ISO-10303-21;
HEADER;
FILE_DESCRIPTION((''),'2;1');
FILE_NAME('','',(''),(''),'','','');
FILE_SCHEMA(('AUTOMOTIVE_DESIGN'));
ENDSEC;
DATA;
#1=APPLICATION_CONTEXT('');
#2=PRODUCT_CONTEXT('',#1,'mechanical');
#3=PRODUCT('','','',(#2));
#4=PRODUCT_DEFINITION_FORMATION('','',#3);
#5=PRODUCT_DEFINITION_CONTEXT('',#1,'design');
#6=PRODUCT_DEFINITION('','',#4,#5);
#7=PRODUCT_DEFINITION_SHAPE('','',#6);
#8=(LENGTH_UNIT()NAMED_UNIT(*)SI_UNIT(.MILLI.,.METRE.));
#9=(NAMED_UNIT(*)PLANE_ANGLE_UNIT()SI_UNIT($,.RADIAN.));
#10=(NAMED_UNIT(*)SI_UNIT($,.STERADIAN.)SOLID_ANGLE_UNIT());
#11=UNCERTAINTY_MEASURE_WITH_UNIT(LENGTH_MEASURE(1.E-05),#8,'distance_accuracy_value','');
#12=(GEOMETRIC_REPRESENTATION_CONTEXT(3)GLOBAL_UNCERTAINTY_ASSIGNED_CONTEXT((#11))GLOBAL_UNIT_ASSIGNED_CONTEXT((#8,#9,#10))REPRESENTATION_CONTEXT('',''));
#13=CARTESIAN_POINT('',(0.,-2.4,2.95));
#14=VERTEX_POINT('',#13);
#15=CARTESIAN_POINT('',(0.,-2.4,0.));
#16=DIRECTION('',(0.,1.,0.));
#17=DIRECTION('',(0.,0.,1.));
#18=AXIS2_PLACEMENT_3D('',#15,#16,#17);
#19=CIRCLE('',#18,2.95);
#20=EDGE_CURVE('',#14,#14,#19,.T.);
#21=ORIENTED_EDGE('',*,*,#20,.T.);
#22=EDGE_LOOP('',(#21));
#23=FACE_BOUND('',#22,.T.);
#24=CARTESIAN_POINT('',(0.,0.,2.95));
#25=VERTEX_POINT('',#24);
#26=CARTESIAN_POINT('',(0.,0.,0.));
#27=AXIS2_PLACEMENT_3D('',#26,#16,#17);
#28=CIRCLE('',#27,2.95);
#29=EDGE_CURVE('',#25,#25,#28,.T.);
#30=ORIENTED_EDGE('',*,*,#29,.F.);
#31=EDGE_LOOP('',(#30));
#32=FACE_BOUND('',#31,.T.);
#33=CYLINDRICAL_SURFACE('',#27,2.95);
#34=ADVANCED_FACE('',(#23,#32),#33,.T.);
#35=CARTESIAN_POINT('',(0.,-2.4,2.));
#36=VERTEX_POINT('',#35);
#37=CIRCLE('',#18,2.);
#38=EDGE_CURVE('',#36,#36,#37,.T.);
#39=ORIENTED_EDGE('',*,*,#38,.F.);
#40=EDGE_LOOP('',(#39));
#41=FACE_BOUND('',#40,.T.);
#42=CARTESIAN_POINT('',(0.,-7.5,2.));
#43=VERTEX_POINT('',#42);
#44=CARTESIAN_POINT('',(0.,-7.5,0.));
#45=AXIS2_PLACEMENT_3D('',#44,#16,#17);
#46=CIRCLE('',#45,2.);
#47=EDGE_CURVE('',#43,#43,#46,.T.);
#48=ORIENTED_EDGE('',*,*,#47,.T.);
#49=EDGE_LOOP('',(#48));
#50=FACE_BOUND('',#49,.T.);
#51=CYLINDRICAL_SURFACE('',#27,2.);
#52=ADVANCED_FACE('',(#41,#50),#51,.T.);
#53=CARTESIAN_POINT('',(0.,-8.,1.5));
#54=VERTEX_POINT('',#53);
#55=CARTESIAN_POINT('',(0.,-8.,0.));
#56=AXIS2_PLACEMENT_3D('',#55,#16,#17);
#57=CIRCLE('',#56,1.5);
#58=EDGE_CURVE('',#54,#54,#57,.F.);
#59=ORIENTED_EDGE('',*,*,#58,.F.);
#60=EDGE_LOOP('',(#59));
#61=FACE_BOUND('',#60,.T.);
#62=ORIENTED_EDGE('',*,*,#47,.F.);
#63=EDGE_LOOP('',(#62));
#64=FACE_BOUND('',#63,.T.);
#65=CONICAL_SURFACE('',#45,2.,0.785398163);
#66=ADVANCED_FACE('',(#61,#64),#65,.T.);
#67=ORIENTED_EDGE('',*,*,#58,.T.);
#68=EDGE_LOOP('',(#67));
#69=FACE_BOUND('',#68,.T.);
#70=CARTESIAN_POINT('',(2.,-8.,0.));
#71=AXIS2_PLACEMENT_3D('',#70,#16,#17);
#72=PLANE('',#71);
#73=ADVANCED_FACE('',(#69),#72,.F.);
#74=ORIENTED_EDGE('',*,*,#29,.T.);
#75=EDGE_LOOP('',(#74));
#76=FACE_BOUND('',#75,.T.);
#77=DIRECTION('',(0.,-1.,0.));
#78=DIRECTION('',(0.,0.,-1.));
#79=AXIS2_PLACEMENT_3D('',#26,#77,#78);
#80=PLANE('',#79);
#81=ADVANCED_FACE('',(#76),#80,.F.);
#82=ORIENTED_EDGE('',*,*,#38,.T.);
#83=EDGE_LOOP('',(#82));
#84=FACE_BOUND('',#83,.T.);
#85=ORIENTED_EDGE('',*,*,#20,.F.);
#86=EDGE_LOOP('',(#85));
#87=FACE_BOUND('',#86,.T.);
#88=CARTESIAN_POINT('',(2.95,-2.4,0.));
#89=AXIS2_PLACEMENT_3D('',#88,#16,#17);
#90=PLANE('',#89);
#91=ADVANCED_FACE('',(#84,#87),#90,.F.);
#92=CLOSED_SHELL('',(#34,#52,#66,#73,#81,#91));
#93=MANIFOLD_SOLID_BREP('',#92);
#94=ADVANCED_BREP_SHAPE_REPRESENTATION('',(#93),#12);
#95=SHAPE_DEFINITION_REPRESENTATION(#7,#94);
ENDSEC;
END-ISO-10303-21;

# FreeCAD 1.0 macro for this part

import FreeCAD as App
import Part
import Sketcher

V = App.Vector
Q = App.Units.Quantity


def edges_at(feature, points):
    """Names of the edges that pass closest to the given points."""
    edges = feature.Shape.Edges
    near = lambda p: min(range(len(edges)), key=lambda i: edges[i].distToShape(Part.Vertex(*p))[0])
    return sorted({f"Edge{near(p) + 1}" for p in points})


def add_polygon(sketch, points):
    """Adds a closed chain of lines whose ends are joined by coincident constraints."""
    first, n = sketch.GeometryCount, len(points)
    for a, b in zip(points, points[1:] + points[:1]):
        sketch.addGeometry(Part.LineSegment(App.Vector(*a, 0), App.Vector(*b, 0)), False)
    for i in range(n):
        sketch.addConstraint(Sketcher.Constraint("Coincident", first + i, 2, first + (i + 1) % n, 1))

doc = App.newDocument("Part")
body = doc.addObject("PartDesign::Body", "Body")

# Sketch on XY plane
sketch1 = body.newObject("Sketcher::SketchObject", "Sketch")
sketch1.AttachmentSupport = (doc.getObject("XY_Plane"), [""])
sketch1.MapMode = "FlatFace"
add_polygon(sketch1, [(2.95, 0), (0, 0), (0, -8), (2, -8), (2, -2.4), (2.95, -2.4)])  # lines 0-5
sketch1.addConstraint(Sketcher.Constraint("Horizontal", 0))
sketch1.addConstraint(Sketcher.Constraint("Vertical", 1))
sketch1.addConstraint(Sketcher.Constraint("Horizontal", 2))
sketch1.addConstraint(Sketcher.Constraint("Vertical", 3))
sketch1.addConstraint(Sketcher.Constraint("Horizontal", 4))
sketch1.addConstraint(Sketcher.Constraint("Vertical", 5))
sketch1.addConstraint(Sketcher.Constraint("Coincident", 0, 2, -1, 1))
sketch1.addConstraint(Sketcher.Constraint("DistanceX", 2, 1, 2, 2, Q("2 mm")))
sketch1.addConstraint(Sketcher.Constraint("DistanceY", 1, 2, 1, 1, Q("8 mm")))
sketch1.addConstraint(Sketcher.Constraint("DistanceY", 3, 1, 3, 2, Q("5.6 mm")))
sketch1.addConstraint(Sketcher.Constraint("DistanceX", 0, 2, 0, 1, Q("2.95 mm")))
revolution = body.newObject("PartDesign::Revolution", "Revolution")
revolution.Profile = sketch1
revolution.ReferenceAxis = (sketch1, ["V_Axis"])
revolution.Angle = 360
doc.recompute()

chamfer = body.newObject("PartDesign::Chamfer", "Chamfer")
chamfer.Base = (revolution, edges_at(revolution, [(-2, -8, 0)]))
chamfer.Size = 0.5

doc.recompute()
